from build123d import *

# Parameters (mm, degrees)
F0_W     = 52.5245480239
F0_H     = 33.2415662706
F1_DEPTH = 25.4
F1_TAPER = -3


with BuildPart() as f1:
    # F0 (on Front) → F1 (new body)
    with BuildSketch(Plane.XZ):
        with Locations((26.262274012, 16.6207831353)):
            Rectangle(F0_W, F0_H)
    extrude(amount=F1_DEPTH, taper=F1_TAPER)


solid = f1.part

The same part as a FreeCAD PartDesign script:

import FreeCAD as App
import Part
import Sketcher
Q = App.Units.Quantity


def add_polygon(sketch, points):
    """Adds a closed chain of lines whose ends are joined by coincident constraints."""
    first, n = sketch.GeometryCount, len(points)
    for a, b in zip(points, points[1:] + points[:1]):
        sketch.addGeometry(Part.LineSegment(App.Vector(*a, 0), App.Vector(*b, 0)), False)
    for i in range(n):
        sketch.addConstraint(Sketcher.Constraint("Coincident", first + i, 2, first + (i + 1) % n, 1))

doc = App.newDocument("Part")
body = doc.addObject("PartDesign::Body", "Body")

sketch1 = body.newObject("Sketcher::SketchObject", "Sketch")
sketch1.AttachmentSupport = (doc.getObject("XZ_Plane"), [""])
sketch1.MapMode = "FlatFace"
add_polygon(sketch1, [(0, 33), (0, 0), (53, 0), (53, 33)])
sketch1.addConstraint(Sketcher.Constraint("Vertical", 0))
sketch1.addConstraint(Sketcher.Constraint("Horizontal", 1))
sketch1.addConstraint(Sketcher.Constraint("Vertical", 2))
sketch1.addConstraint(Sketcher.Constraint("Horizontal", 3))
sketch1.addConstraint(Sketcher.Constraint("Coincident", 0, 2, -1, 1))
sketch1.addConstraint(Sketcher.Constraint("DistanceX", 1, 1, 1, 2, 52.524548))
sketch1.addConstraint(Sketcher.Constraint("DistanceY", 0, 2, 0, 1, 33.241566))
pad1 = body.newObject("PartDesign::Pad", "Pad")
pad1.Profile = sketch1
pad1.Length = Q("1 in")
pad1.TaperAngle = 3

doc.recompute()
